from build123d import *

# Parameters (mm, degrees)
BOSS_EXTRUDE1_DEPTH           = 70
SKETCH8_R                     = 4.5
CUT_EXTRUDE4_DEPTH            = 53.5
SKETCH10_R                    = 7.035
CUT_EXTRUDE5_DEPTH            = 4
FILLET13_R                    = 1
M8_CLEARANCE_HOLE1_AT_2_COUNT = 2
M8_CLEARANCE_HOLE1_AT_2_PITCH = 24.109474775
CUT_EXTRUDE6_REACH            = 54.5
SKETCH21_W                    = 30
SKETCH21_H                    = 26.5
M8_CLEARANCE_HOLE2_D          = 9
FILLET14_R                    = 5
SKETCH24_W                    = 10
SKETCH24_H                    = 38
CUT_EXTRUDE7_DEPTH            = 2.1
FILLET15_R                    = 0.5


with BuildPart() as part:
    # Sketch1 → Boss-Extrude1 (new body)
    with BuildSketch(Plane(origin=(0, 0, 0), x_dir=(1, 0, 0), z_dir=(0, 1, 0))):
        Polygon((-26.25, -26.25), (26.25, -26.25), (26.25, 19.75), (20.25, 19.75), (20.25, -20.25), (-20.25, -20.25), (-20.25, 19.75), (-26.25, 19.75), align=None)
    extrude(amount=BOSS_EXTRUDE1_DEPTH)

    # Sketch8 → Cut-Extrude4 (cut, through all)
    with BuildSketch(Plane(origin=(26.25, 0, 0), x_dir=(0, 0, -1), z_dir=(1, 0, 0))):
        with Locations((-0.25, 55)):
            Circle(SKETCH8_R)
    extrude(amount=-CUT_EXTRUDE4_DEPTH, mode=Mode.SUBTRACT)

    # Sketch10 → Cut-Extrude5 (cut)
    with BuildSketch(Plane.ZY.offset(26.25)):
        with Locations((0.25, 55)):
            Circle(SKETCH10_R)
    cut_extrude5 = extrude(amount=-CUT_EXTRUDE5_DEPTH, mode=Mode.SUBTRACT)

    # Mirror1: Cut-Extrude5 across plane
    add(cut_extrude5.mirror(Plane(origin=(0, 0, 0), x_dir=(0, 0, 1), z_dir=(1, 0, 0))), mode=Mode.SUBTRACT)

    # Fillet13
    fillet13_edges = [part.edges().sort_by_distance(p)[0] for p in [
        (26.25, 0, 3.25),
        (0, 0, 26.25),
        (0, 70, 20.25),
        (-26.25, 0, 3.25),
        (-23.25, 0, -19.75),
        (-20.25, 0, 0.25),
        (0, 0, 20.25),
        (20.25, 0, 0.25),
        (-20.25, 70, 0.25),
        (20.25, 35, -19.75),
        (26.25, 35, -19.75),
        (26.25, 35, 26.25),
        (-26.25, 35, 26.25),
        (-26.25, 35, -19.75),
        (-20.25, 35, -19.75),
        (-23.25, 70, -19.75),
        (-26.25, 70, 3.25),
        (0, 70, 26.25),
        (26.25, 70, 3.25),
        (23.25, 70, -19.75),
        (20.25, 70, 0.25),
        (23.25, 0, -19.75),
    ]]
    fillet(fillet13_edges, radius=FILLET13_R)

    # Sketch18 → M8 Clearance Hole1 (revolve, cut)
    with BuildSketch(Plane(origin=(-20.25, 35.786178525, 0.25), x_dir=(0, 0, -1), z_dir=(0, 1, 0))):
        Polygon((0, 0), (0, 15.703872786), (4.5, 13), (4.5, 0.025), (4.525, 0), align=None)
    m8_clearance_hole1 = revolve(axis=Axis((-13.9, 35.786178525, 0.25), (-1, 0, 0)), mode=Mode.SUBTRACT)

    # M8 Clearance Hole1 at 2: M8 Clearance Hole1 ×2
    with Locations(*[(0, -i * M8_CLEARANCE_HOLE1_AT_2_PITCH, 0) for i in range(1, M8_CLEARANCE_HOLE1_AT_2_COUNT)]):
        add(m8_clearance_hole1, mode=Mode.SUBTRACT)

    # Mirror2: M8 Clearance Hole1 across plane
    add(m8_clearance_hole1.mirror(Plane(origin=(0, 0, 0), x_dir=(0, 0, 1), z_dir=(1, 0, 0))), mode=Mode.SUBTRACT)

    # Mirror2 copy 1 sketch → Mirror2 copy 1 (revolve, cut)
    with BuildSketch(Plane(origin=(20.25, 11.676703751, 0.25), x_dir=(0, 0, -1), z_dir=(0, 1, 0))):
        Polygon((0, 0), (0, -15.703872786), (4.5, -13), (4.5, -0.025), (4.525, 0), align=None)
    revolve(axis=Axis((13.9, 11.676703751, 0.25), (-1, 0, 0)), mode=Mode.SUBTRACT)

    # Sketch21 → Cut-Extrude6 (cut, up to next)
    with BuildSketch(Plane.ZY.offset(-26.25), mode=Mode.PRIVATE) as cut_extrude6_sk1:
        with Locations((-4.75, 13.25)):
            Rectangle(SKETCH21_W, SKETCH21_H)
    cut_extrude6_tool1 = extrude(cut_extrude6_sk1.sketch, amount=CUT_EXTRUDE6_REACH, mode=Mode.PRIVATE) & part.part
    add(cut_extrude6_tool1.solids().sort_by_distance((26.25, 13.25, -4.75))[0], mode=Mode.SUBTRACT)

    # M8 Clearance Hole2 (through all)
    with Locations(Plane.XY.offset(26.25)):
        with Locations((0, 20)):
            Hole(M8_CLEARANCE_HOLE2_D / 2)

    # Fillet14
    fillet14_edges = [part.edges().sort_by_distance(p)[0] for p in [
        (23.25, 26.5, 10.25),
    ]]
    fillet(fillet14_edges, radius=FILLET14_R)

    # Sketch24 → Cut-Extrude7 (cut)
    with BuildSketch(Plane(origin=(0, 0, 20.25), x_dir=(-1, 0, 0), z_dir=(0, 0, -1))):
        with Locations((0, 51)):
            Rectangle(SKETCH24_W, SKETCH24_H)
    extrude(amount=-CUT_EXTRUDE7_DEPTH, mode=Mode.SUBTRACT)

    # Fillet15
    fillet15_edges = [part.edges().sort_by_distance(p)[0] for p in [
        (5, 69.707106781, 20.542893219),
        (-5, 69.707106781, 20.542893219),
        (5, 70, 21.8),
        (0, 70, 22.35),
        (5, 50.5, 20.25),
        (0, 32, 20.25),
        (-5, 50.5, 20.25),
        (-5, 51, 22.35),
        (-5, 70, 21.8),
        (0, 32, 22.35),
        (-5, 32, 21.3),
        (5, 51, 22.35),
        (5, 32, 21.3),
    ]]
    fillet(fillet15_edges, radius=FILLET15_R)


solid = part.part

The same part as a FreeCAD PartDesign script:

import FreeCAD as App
import Part
import Sketcher

V = App.Vector
Q = App.Units.Quantity


def edges_at(feature, points):
    """Names of the edges that pass closest to the given points."""
    edges = feature.Shape.Edges
    near = lambda p: min(range(len(edges)), key=lambda i: edges[i].distToShape(Part.Vertex(*p))[0])
    return sorted({f"Edge{near(p) + 1}" for p in points})

doc = App.newDocument("Part")
body = doc.addObject("PartDesign::Body", "Body")

# Sketch on XZ plane
sketch1 = body.newObject("Sketcher::SketchObject", "Sketch")
sketch1.AttachmentSupport = (doc.getObject("XZ_Plane"), [""])
sketch1.MapMode = "FlatFace"
sketch1.addGeometry(Part.LineSegment(V(-26.25, 26.25, 0), V(26.25, 26.25, 0)), False)
sketch1.addGeometry(Part.LineSegment(V(26.25, 26.25, 0), V(26.25, -19.75, 0)), False)
sketch1.addGeometry(Part.LineSegment(V(26.25, -19.75, 0), V(20.25, -19.75, 0)), False)
sketch1.addGeometry(Part.LineSegment(V(20.25, -19.75, 0), V(20.25, 20.25, 0)), False)
sketch1.addGeometry(Part.LineSegment(V(20.25, 20.25, 0), V(-20.25, 20.25, 0)), False)
sketch1.addGeometry(Part.LineSegment(V(-20.25, 20.25, 0), V(-20.25, -19.75, 0)), False)
sketch1.addGeometry(Part.LineSegment(V(-20.25, -19.75, 0), V(-26.25, -19.75, 0)), False)
sketch1.addGeometry(Part.LineSegment(V(-26.25, -19.75, 0), V(-26.25, 26.25, 0)), False)
sketch1.addConstraint(Sketcher.Constraint("Coincident", 0, 2, 1, 1))
sketch1.addConstraint(Sketcher.Constraint("Coincident", 1, 2, 2, 1))
sketch1.addConstraint(Sketcher.Constraint("Coincident", 2, 2, 3, 1))
sketch1.addConstraint(Sketcher.Constraint("Coincident", 3, 2, 4, 1))
sketch1.addConstraint(Sketcher.Constraint("Coincident", 4, 2, 5, 1))
sketch1.addConstraint(Sketcher.Constraint("Coincident", 5, 2, 6, 1))
sketch1.addConstraint(Sketcher.Constraint("Coincident", 6, 2, 7, 1))
sketch1.addConstraint(Sketcher.Constraint("Coincident", 7, 2, 0, 1))
sketch1.addConstraint(Sketcher.Constraint("Horizontal", 0))
sketch1.addConstraint(Sketcher.Constraint("Vertical", 1))
sketch1.addConstraint(Sketcher.Constraint("Horizontal", 2))
sketch1.addConstraint(Sketcher.Constraint("Vertical", 3))
sketch1.addConstraint(Sketcher.Constraint("Horizontal", 4))
sketch1.addConstraint(Sketcher.Constraint("Vertical", 5))
sketch1.addConstraint(Sketcher.Constraint("Horizontal", 6))
sketch1.addConstraint(Sketcher.Constraint("Vertical", 7))
sketch1.addConstraint(Sketcher.Constraint("Symmetric", 2, 2, 5, 2, -2))
sketch1.addConstraint(Sketcher.Constraint("Equal", 2, 6))
sketch1.addConstraint(Sketcher.Constraint("DistanceX", 2, 2, 2, 1, 6.0))
sketch1.addConstraint(Sketcher.Constraint("DistanceY", 1, 2, 1, 1, 46.0))
sketch1.addConstraint(Sketcher.Constraint("DistanceY", 3, 1, 3, 2, 40.0))
sketch1.addConstraint(Sketcher.Constraint("DistanceX", 0, 1, 0, 2, 52.5))
sketch1.addConstraint(Sketcher.Constraint("DistanceY", -1, 1, 0, 2, 26.25))
pad1 = body.newObject("PartDesign::Pad", "Pad")
pad1.Profile = sketch1
pad1.Length = 70
pad1.Reversed = True

# Sketch on YZ plane
sketch2 = body.newObject("Sketcher::SketchObject", "Sketch001")
sketch2.AttachmentSupport = (doc.getObject("YZ_Plane"), [""])
sketch2.MapMode = "FlatFace"
sketch2.AttachmentOffset = App.Placement(V(0, 0, 26.25), App.Rotation())
sketch2.addGeometry(Part.Circle(V(55, 0.25, 0), V(0, 0, 1), 4.5), False)
sketch2.addConstraint(Sketcher.Constraint("Diameter", 0, 9.0))
sketch2.addConstraint(Sketcher.Constraint("DistanceX", -1, 1, 0, 3, 55.0))
sketch2.addConstraint(Sketcher.Constraint("DistanceY", -1, 1, 0, 3, 0.25))
pocket1 = body.newObject("PartDesign::Pocket", "Pocket")
pocket1.Profile = sketch2
pocket1.Type = "ThroughAll"

# Sketch on YZ plane
sketch3 = body.newObject("Sketcher::SketchObject", "Sketch002")
sketch3.AttachmentSupport = (doc.getObject("YZ_Plane"), [""])
sketch3.MapMode = "FlatFace"
sketch3.AttachmentOffset = App.Placement(V(0, 0, -26.25), App.Rotation())
sketch3.addGeometry(Part.Circle(V(55, 0.25, 0), V(0, 0, 1), 7.035), False)
sketch3.addConstraint(Sketcher.Constraint("Diameter", 0, 14.07))
sketch3.addConstraint(Sketcher.Constraint("DistanceX", -1, 1, 0, 3, 55.0))
sketch3.addConstraint(Sketcher.Constraint("DistanceY", -1, 1, 0, 3, 0.25))
pocket2 = body.newObject("PartDesign::Pocket", "Pocket001")
pocket2.Profile = sketch3
pocket2.Length = 4
pocket2.Reversed = True
doc.recompute()

mirrored = body.newObject("PartDesign::Mirrored", "Mirrored")
mirrored.Originals = [pocket2]
mirrored.MirrorPlane = (doc.getObject("YZ_Plane"), [""])
body.Tip = mirrored
doc.recompute()

fillet = body.newObject("PartDesign::Fillet", "Fillet")
fillet.Base = (mirrored, edges_at(mirrored, [
    (26.25, 0, 3.25),
    (0, 0, 26.25),
    (0, 70, 20.25),
    (-26.25, 0, 3.25),
    (-23.25, 0, -19.75),
    (-20.25, 0, 0.25),
    (0, 0, 20.25),
    (20.25, 0, 0.25),
    (-20.25, 70, 0.25),
    (20.25, 35, -19.75),
    (26.25, 35, -19.75),
    (26.25, 35, 26.25),
    (-26.25, 35, 26.25),
    (-26.25, 35, -19.75),
    (-20.25, 35, -19.75),
    (-23.25, 70, -19.75),
    (-26.25, 70, 3.25),
    (0, 70, 26.25),
    (26.25, 70, 3.25),
    (23.25, 70, -19.75),
    (20.25, 70, 0.25),
    (23.25, 0, -19.75),
]))
fillet.Radius = 1

# Sketch on XZ plane
sketch4 = body.newObject("Sketcher::SketchObject", "Sketch003")
sketch4.AttachmentSupport = (doc.getObject("XZ_Plane"), [""])
sketch4.MapMode = "FlatFace"
sketch4.AttachmentOffset = App.Placement(V(0, 0, -35.786179), App.Rotation())
sketch4.addGeometry(Part.LineSegment(V(-35.953873, 0.25, 0), V(-20.25, 0.25, 0)), False)
sketch4.addGeometry(Part.LineSegment(V(-20.25, 0.25, 0), V(-20.25, -4.275, 0)), False)
sketch4.addGeometry(Part.LineSegment(V(-20.25, -4.275, 0), V(-20.275, -4.25, 0)), False)
sketch4.addGeometry(Part.LineSegment(V(-20.275, -4.25, 0), V(-33.25, -4.25, 0)), False)
sketch4.addGeometry(Part.LineSegment(V(-33.25, -4.25, 0), V(-35.953873, 0.25, 0)), False)
sketch4.addGeometry(Part.LineSegment(V(-20.25, 0.25, 0), V(-35.953873, 0.25, 0)), True)  # axis
sketch4.addConstraint(Sketcher.Constraint("Coincident", 0, 2, 1, 1))
sketch4.addConstraint(Sketcher.Constraint("Coincident", 1, 2, 2, 1))
sketch4.addConstraint(Sketcher.Constraint("Coincident", 2, 2, 3, 1))
sketch4.addConstraint(Sketcher.Constraint("Coincident", 3, 2, 4, 1))
sketch4.addConstraint(Sketcher.Constraint("Coincident", 4, 2, 0, 1))
sketch4.addConstraint(Sketcher.Constraint("Horizontal", 0))
sketch4.addConstraint(Sketcher.Constraint("Vertical", 1))
sketch4.addConstraint(Sketcher.Constraint("Horizontal", 3))
sketch4.addConstraint(Sketcher.Constraint("Horizontal", 5))
sketch4.addConstraint(Sketcher.Constraint("Coincident", 5, 1, 0, 2))
sketch4.addConstraint(Sketcher.Constraint("Equal", 0, 5))
sketch4.addConstraint(Sketcher.Constraint("Angle", 2, Q("135 deg")))
sketch4.addConstraint(Sketcher.Constraint("Angle", 4, Q("121 deg")))
sketch4.addConstraint(Sketcher.Constraint("DistanceX", 3, 2, 1, 2, 13.0))
sketch4.addConstraint(Sketcher.Constraint("DistanceY", 2, 2, 0, 2, 4.5))
sketch4.addConstraint(Sketcher.Constraint("DistanceX", 3, 2, 3, 1, 12.975))
sketch4.addConstraint(Sketcher.Constraint("DistanceX", 0, 2, -1, 1, 20.25))
sketch4.addConstraint(Sketcher.Constraint("DistanceY", -1, 1, 0, 2, 0.25))
groove = body.newObject("PartDesign::Groove", "Groove")
groove.Profile = sketch4
groove.ReferenceAxis = (sketch4, ["Axis0"])
groove.Angle = 360
doc.recompute()

linearpattern = body.newObject("PartDesign::LinearPattern", "LinearPattern")
linearpattern.Originals = [groove]
linearpattern.Direction = (doc.getObject("Y_Axis"), [""])
linearpattern.Mode = "offset"
linearpattern.Offset = 24.109475
linearpattern.Occurrences = 2
linearpattern.Reversed = True
body.Tip = linearpattern
doc.recompute()

mirrored2 = body.newObject("PartDesign::Mirrored", "Mirrored001")
mirrored2.Originals = [groove]
mirrored2.MirrorPlane = (doc.getObject("YZ_Plane"), [""])
body.Tip = mirrored2

# Sketch on XZ plane
sketch5 = body.newObject("Sketcher::SketchObject", "Sketch004")
sketch5.AttachmentSupport = (doc.getObject("XZ_Plane"), [""])
sketch5.MapMode = "FlatFace"
sketch5.AttachmentOffset = App.Placement(V(0, 0, -11.676704), App.Rotation())
sketch5.addGeometry(Part.LineSegment(V(20.25, 0.25, 0), V(35.953873, 0.25, 0)), False)
sketch5.addGeometry(Part.LineSegment(V(35.953873, 0.25, 0), V(33.25, -4.25, 0)), False)
sketch5.addGeometry(Part.LineSegment(V(33.25, -4.25, 0), V(20.275, -4.25, 0)), False)
sketch5.addGeometry(Part.LineSegment(V(20.275, -4.25, 0), V(20.25, -4.275, 0)), False)
sketch5.addGeometry(Part.LineSegment(V(20.25, -4.275, 0), V(20.25, 0.25, 0)), False)
sketch5.addGeometry(Part.LineSegment(V(35.953873, 0.25, 0), V(20.25, 0.25, 0)), True)  # axis
sketch5.addConstraint(Sketcher.Constraint("Coincident", 0, 2, 1, 1))
sketch5.addConstraint(Sketcher.Constraint("Coincident", 1, 2, 2, 1))
sketch5.addConstraint(Sketcher.Constraint("Coincident", 2, 2, 3, 1))
sketch5.addConstraint(Sketcher.Constraint("Coincident", 3, 2, 4, 1))
sketch5.addConstraint(Sketcher.Constraint("Coincident", 4, 2, 0, 1))
sketch5.addConstraint(Sketcher.Constraint("Horizontal", 0))
sketch5.addConstraint(Sketcher.Constraint("Horizontal", 2))
sketch5.addConstraint(Sketcher.Constraint("Vertical", 4))
sketch5.addConstraint(Sketcher.Constraint("Horizontal", 5))
sketch5.addConstraint(Sketcher.Constraint("Coincident", 5, 1, 0, 2))
sketch5.addConstraint(Sketcher.Constraint("Vertical", 3, 2, 5, 2))
sketch5.addConstraint(Sketcher.Constraint("Angle", 1, Q("-121 deg")))
sketch5.addConstraint(Sketcher.Constraint("Angle", 3, Q("-135 deg")))
sketch5.addConstraint(Sketcher.Constraint("DistanceX", 3, 2, 1, 2, 13.0))
sketch5.addConstraint(Sketcher.Constraint("DistanceY", 1, 2, 0, 2, 4.5))
sketch5.addConstraint(Sketcher.Constraint("DistanceX", 2, 2, 2, 1, 12.975))
sketch5.addConstraint(Sketcher.Constraint("DistanceY", -1, 1, 0, 2, 0.25))
sketch5.addConstraint(Sketcher.Constraint("DistanceX", -1, 1, 1, 2, 33.25))
groove2 = body.newObject("PartDesign::Groove", "Groove001")
groove2.Profile = sketch5
groove2.ReferenceAxis = (sketch5, ["Axis0"])
groove2.Angle = 360

# Sketch on YZ plane
sketch6 = body.newObject("Sketcher::SketchObject", "Sketch005")
sketch6.AttachmentSupport = (doc.getObject("YZ_Plane"), [""])
sketch6.MapMode = "FlatFace"
sketch6.AttachmentOffset = App.Placement(V(0, 0, 26.25), App.Rotation())
sketch6.addGeometry(Part.LineSegment(V(26.5, -19.75, 0), V(0, -19.75, 0)), False)
sketch6.addGeometry(Part.LineSegment(V(0, -19.75, 0), V(0, 10.25, 0)), False)
sketch6.addGeometry(Part.LineSegment(V(0, 10.25, 0), V(26.5, 10.25, 0)), False)
sketch6.addGeometry(Part.LineSegment(V(26.5, 10.25, 0), V(26.5, -19.75, 0)), False)
sketch6.addConstraint(Sketcher.Constraint("Coincident", 0, 2, 1, 1))
sketch6.addConstraint(Sketcher.Constraint("Coincident", 1, 2, 2, 1))
sketch6.addConstraint(Sketcher.Constraint("Coincident", 2, 2, 3, 1))
sketch6.addConstraint(Sketcher.Constraint("Coincident", 3, 2, 0, 1))
sketch6.addConstraint(Sketcher.Constraint("Horizontal", 0))
sketch6.addConstraint(Sketcher.Constraint("Vertical", 1))
sketch6.addConstraint(Sketcher.Constraint("Horizontal", 2))
sketch6.addConstraint(Sketcher.Constraint("Vertical", 3))
sketch6.addConstraint(Sketcher.Constraint("PointOnObject", 0, 2, -2))
sketch6.addConstraint(Sketcher.Constraint("DistanceY", 1, 1, 1, 2, 30.0))
sketch6.addConstraint(Sketcher.Constraint("DistanceX", 0, 2, 0, 1, 26.5))
sketch6.addConstraint(Sketcher.Constraint("DistanceY", 0, 2, -1, 1, 19.75))
pocket3 = body.newObject("PartDesign::Pocket", "Pocket002")
pocket3.Profile = sketch6
pocket3.Type = "UpToFirst"

# Sketch on XY plane
sketch7 = body.newObject("Sketcher::SketchObject", "Sketch006")
sketch7.AttachmentSupport = (doc.getObject("XY_Plane"), [""])
sketch7.MapMode = "FlatFace"
sketch7.AttachmentOffset = App.Placement(V(0, 0, 26.25), App.Rotation())
sketch7.addGeometry(Part.Circle(V(0, 20, 0), V(0, 0, 1), 4.5), False)
sketch7.addConstraint(Sketcher.Constraint("PointOnObject", 0, 3, -2))
sketch7.addConstraint(Sketcher.Constraint("Diameter", 0, 9.0))
sketch7.addConstraint(Sketcher.Constraint("DistanceY", -1, 1, 0, 3, 20.0))
doc.recompute()
hole = body.newObject("PartDesign::Hole", "Hole")
hole.Profile = sketch7
hole.ThreadType = "None"
hole.Diameter = 9
hole.DepthType = "ThroughAll"
doc.recompute()

fillet2 = body.newObject("PartDesign::Fillet", "Fillet001")
fillet2.Base = (hole, edges_at(hole, [(23.25, 26.5, 10.25)]))
fillet2.Radius = 5

# Sketch on XY plane
sketch8 = body.newObject("Sketcher::SketchObject", "Sketch007")
sketch8.AttachmentSupport = (doc.getObject("XY_Plane"), [""])
sketch8.MapMode = "FlatFace"
sketch8.AttachmentOffset = App.Placement(V(0, 0, 20.25), App.Rotation())
sketch8.addGeometry(Part.LineSegment(V(5, 70, 0), V(5, 32, 0)), False)
sketch8.addGeometry(Part.LineSegment(V(5, 32, 0), V(-5, 32, 0)), False)
sketch8.addGeometry(Part.LineSegment(V(-5, 32, 0), V(-5, 70, 0)), False)
sketch8.addGeometry(Part.LineSegment(V(-5, 70, 0), V(5, 70, 0)), False)
sketch8.addConstraint(Sketcher.Constraint("Coincident", 0, 2, 1, 1))
sketch8.addConstraint(Sketcher.Constraint("Coincident", 1, 2, 2, 1))
sketch8.addConstraint(Sketcher.Constraint("Coincident", 2, 2, 3, 1))
sketch8.addConstraint(Sketcher.Constraint("Coincident", 3, 2, 0, 1))
sketch8.addConstraint(Sketcher.Constraint("Vertical", 0))
sketch8.addConstraint(Sketcher.Constraint("Horizontal", 1))
sketch8.addConstraint(Sketcher.Constraint("Vertical", 2))
sketch8.addConstraint(Sketcher.Constraint("Horizontal", 3))
sketch8.addConstraint(Sketcher.Constraint("DistanceX", 1, 2, 1, 1, 10.0))
sketch8.addConstraint(Sketcher.Constraint("DistanceY", 0, 2, 0, 1, 38.0))
sketch8.addConstraint(Sketcher.Constraint("DistanceX", -1, 1, 0, 2, 5.0))
sketch8.addConstraint(Sketcher.Constraint("DistanceY", -1, 1, 0, 2, 32.0))
pocket4 = body.newObject("PartDesign::Pocket", "Pocket003")
pocket4.Profile = sketch8
pocket4.Length = 2.1
pocket4.Reversed = True
doc.recompute()

fillet3 = body.newObject("PartDesign::Fillet", "Fillet002")
fillet3.Base = (pocket4, edges_at(pocket4, [
    (5, 69.707, 20.543),
    (-5, 69.707, 20.543),
    (5, 70, 21.8),
    (0, 70, 22.35),
    (5, 50.5, 20.25),
    (0, 32, 20.25),
    (-5, 50.5, 20.25),
    (-5, 51, 22.35),
    (-5, 70, 21.8),
    (0, 32, 22.35),
    (-5, 32, 21.3),
    (5, 51, 22.35),
    (5, 32, 21.3),
]))
fillet3.Radius = 0.5

doc.recompute()
